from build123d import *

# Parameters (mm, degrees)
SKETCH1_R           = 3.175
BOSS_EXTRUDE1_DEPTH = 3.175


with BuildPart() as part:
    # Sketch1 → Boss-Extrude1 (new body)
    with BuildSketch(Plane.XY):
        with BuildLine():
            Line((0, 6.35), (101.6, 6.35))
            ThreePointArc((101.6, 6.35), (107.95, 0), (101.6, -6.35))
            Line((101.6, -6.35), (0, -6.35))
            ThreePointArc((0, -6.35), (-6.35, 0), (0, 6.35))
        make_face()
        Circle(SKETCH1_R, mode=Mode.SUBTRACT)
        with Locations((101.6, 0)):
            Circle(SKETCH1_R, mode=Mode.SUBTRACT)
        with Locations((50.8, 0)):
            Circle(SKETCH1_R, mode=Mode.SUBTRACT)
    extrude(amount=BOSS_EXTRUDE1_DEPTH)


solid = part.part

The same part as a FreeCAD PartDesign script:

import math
import FreeCAD as App
import Part
import Sketcher
from FreeCAD import Vector
Q = App.Units.Quantity

doc = App.newDocument("Part")
params = doc.addObject("Spreadsheet::Sheet", "Params")
for row, (alias, value) in enumerate([
    ("sketch1_diameter", "0.25 in"),
    ("sketch1_width", "4 in"),
    ("sketch1_radius", "0.25 in"),
    ("pad1_length", "0.125 in"),
], start=1):
    params.set(f"A{row}", alias)
    params.set(f"B{row}", "=" + value)
    params.setAlias(f"B{row}", alias)

body = doc.addObject("PartDesign::Body", "Body")

sketch1 = body.newObject("Sketcher::SketchObject", "Sketch")
sketch1.AttachmentSupport = (doc.getObject("XY_Plane"), [""])
sketch1.MapMode = "FlatFace"
sketch1.addGeometry([
    Part.LineSegment(Vector(101.6, 6.3, 0), Vector(0, 6.3, 0)),
    Part.ArcOfCircle(Part.Circle(Vector(0, 0, 0), Vector(0, 0, 1), 6.3), math.radians(90), math.radians(270)),
    Part.LineSegment(Vector(0, -6.3, 0), Vector(101.6, -6.3, 0)),
    Part.ArcOfCircle(Part.Circle(Vector(101.6, 0, 0), Vector(0, 0, 1), 6.3), math.radians(-90), math.radians(90)),
    Part.Circle(Vector(101.6, 0, 0), Vector(0, 0, 1), 3.2),
    Part.Circle(Vector(50.8, 0, 0), Vector(0, 0, 1), 3.2),
    Part.Circle(Vector(0, 0, 0), Vector(0, 0, 1), 3.2),
], False)
sketch1.addConstraint([
    Sketcher.Constraint("Tangent", 0, 2, 1, 1),
    Sketcher.Constraint("Tangent", 1, 2, 2, 1),
    Sketcher.Constraint("Tangent", 2, 2, 3, 1),
    Sketcher.Constraint("Tangent", 3, 2, 0, 1),
    Sketcher.Constraint("Horizontal", 0),
    Sketcher.Constraint("Horizontal", 2),
    Sketcher.Constraint("Coincident", 1, 3, -1, 1),
    Sketcher.Constraint("Coincident", 6, 3, -1, 1),
    Sketcher.Constraint("Coincident", 4, 3, 3, 3),
    Sketcher.Constraint("Equal", 4, 5),
    Sketcher.Constraint("Equal", 5, 6),
    Sketcher.Constraint("PointOnObject", 5, 3, -1),
    Sketcher.Constraint("Diameter", 4, Q("0.25 in")),
    Sketcher.Constraint("DistanceX", 0, 2, 0, 1, Q("4 in")),
    Sketcher.Constraint("Radius", 1, Q("0.25 in")),
    Sketcher.Constraint("DistanceX", -1, 1, 5, 3, Q("2 in")),
])
sketch1.setExpression("Constraints[12]", "Params.sketch1_diameter")
sketch1.setExpression("Constraints[13]", "Params.sketch1_width")
sketch1.setExpression("Constraints[14]", "Params.sketch1_radius")
pad1 = body.newObject("PartDesign::Pad", "Pad")
pad1.Profile = sketch1
pad1.setExpression("Length", "Params.pad1_length")

doc.recompute()
